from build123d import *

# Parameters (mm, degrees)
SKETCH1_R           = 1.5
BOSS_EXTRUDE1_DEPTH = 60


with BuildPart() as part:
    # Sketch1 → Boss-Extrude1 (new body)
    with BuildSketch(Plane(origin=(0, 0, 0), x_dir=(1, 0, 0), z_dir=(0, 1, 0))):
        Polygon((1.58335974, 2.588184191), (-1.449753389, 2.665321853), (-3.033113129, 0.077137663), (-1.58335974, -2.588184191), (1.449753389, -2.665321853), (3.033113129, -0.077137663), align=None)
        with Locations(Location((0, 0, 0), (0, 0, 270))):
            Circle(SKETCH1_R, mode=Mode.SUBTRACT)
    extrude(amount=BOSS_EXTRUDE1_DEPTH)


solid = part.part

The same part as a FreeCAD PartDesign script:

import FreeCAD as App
import Part
import Sketcher

V = App.Vector

doc = App.newDocument("Part")
body = doc.addObject("PartDesign::Body", "Body")

# Sketch on XZ plane
sketch1 = body.newObject("Sketcher::SketchObject", "Sketch")
sketch1.AttachmentSupport = (doc.getObject("XZ_Plane"), [""])
sketch1.MapMode = "FlatFace"
sketch1.addGeometry(Part.LineSegment(V(1.58336, -2.588184, 0), V(-1.449753, -2.665322, 0)), False)
sketch1.addGeometry(Part.LineSegment(V(-1.449753, -2.665322, 0), V(-3.033113, -0.077138, 0)), False)
sketch1.addGeometry(Part.LineSegment(V(-3.033113, -0.077138, 0), V(-1.58336, 2.588184, 0)), False)
sketch1.addGeometry(Part.LineSegment(V(-1.58336, 2.588184, 0), V(1.449753, 2.665322, 0)), False)
sketch1.addGeometry(Part.LineSegment(V(1.449753, 2.665322, 0), V(3.033113, 0.077138, 0)), False)
sketch1.addGeometry(Part.LineSegment(V(3.033113, 0.077138, 0), V(1.58336, -2.588184, 0)), False)
sketch1.addGeometry(Part.Circle(V(0, 0, 0), V(0, 0, 1), 1.5), False)
sketch1.addConstraint(Sketcher.Constraint("Coincident", 0, 2, 1, 1))
sketch1.addConstraint(Sketcher.Constraint("Coincident", 1, 2, 2, 1))
sketch1.addConstraint(Sketcher.Constraint("Coincident", 2, 2, 3, 1))
sketch1.addConstraint(Sketcher.Constraint("Coincident", 3, 2, 4, 1))
sketch1.addConstraint(Sketcher.Constraint("Coincident", 4, 2, 5, 1))
sketch1.addConstraint(Sketcher.Constraint("Coincident", 5, 2, 0, 1))
sketch1.addConstraint(Sketcher.Constraint("Coincident", 6, 3, -1, 1))
sketch1.addConstraint(Sketcher.Constraint("Symmetric", 0, 2, 3, 2, -1, 1))
sketch1.addConstraint(Sketcher.Constraint("Symmetric", 1, 2, 4, 2, -1, 1))
sketch1.addConstraint(Sketcher.Constraint("Symmetric", 2, 2, 5, 2, -1, 1))
sketch1.addConstraint(Sketcher.Constraint("Equal", 0, 1))
sketch1.addConstraint(Sketcher.Constraint("Equal", 1, 2))
sketch1.addConstraint(Sketcher.Constraint("Diameter", 6, 3.0))
sketch1.addConstraint(Sketcher.Constraint("DistanceY", 0, 2, -1, 1, 2.665322))
sketch1.addConstraint(Sketcher.Constraint("DistanceX", 2, 2, -1, 1, 1.58336))
sketch1.addConstraint(Sketcher.Constraint("DistanceX", 1, 2, 0, 2, 1.58336))
sketch1.addConstraint(Sketcher.Constraint("DistanceY", 1, 2, 2, 2, 2.665322))
pad1 = body.newObject("PartDesign::Pad", "Pad")
pad1.Profile = sketch1
pad1.Length = 60
pad1.Reversed = True

doc.recompute()
